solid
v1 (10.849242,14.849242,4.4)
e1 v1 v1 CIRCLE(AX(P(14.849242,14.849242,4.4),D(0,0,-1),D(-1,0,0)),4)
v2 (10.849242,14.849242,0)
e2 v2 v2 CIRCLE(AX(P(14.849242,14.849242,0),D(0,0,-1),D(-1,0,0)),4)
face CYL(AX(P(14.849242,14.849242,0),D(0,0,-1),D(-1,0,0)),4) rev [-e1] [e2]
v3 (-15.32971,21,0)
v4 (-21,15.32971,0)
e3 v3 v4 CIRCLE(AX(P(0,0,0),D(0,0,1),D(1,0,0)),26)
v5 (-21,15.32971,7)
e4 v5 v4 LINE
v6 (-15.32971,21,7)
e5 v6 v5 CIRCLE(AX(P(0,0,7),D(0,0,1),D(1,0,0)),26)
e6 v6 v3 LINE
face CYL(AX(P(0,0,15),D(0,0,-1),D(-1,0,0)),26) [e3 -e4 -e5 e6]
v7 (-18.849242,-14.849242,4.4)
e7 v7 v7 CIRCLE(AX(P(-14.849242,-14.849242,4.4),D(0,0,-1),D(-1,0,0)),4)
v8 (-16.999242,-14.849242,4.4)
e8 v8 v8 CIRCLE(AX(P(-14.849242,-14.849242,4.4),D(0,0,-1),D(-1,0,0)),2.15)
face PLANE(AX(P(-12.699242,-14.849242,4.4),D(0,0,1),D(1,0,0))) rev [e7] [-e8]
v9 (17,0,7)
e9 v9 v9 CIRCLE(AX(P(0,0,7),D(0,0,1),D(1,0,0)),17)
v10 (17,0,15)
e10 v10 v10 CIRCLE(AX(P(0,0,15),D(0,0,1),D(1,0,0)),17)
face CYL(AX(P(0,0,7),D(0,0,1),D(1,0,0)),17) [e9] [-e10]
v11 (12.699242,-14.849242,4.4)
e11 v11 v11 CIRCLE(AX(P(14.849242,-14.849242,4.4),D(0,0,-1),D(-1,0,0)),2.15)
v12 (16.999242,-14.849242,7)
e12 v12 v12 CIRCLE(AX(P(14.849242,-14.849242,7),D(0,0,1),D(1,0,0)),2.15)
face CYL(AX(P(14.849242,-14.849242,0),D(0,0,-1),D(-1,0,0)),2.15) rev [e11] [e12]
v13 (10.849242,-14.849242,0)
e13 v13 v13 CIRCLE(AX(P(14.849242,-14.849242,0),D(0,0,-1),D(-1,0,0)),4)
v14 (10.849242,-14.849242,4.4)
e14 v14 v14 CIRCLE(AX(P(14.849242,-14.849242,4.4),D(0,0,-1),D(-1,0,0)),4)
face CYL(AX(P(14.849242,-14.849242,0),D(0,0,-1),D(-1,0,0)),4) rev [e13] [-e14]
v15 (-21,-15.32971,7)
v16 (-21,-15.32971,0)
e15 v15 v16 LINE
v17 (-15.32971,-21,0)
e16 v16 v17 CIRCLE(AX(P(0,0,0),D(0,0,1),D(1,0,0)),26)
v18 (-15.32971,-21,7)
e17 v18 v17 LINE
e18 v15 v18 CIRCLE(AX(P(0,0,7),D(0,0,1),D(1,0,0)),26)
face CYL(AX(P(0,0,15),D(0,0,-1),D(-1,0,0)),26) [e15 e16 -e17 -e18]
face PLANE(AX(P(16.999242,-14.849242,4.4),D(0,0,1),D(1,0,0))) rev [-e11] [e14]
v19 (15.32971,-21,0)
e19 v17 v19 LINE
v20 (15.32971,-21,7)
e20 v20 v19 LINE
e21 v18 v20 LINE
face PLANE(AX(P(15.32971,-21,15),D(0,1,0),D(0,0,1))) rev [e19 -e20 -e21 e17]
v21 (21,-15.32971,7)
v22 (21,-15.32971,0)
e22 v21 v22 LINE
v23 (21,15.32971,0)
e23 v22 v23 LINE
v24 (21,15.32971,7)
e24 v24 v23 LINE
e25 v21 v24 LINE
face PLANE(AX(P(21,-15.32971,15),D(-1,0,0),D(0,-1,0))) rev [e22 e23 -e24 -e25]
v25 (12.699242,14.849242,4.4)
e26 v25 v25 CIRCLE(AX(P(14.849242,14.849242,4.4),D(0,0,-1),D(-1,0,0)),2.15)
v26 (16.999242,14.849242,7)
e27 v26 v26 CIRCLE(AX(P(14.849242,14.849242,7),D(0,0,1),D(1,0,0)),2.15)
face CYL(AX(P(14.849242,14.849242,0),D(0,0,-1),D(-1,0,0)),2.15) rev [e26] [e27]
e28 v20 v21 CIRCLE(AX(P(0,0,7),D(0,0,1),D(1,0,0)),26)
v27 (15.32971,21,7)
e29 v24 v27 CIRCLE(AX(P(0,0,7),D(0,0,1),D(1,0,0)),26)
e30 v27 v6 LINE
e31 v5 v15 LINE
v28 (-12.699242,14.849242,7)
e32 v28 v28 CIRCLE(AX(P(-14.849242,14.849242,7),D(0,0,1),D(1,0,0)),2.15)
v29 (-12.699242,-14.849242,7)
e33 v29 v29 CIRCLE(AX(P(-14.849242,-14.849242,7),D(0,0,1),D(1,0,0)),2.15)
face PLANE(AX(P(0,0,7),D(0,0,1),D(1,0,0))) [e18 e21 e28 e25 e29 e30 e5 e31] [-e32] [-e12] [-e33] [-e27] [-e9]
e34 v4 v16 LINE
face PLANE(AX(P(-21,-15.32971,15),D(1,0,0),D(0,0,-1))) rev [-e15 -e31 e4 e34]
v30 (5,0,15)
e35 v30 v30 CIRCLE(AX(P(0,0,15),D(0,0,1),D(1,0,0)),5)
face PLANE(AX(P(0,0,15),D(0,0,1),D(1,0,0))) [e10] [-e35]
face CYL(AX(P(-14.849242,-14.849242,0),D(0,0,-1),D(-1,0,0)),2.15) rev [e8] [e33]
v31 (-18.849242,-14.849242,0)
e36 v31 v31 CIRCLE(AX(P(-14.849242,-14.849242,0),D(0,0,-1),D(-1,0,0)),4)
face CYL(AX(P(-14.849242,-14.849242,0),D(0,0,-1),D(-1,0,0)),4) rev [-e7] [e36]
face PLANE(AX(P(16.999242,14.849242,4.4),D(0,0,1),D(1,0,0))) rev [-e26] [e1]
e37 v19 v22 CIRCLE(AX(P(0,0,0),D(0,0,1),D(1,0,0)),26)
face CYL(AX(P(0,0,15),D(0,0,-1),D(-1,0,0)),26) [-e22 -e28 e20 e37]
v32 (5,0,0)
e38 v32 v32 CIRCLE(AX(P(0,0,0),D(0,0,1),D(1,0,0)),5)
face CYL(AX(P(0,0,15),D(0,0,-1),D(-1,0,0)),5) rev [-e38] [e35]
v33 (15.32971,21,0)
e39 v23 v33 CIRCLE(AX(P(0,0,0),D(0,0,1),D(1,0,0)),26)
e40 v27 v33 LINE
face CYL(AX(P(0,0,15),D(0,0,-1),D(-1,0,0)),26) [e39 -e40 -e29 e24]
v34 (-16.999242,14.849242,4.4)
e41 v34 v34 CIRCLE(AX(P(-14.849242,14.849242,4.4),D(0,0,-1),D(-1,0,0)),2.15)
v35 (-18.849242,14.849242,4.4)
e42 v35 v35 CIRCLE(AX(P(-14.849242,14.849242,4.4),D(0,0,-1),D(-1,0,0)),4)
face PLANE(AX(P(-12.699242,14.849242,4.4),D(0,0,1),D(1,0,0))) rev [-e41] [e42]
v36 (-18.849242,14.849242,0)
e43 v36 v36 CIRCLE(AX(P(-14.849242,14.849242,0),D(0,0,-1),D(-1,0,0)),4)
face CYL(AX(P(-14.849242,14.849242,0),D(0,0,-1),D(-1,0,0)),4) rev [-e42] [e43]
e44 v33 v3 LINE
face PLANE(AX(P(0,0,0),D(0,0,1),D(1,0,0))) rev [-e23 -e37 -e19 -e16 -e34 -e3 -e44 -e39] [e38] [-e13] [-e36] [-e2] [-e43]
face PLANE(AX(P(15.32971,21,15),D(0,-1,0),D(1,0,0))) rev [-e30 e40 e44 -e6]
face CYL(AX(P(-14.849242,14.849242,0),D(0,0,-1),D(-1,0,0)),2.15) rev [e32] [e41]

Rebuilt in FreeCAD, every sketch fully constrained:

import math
import FreeCAD as App
import Part
import Sketcher

doc = App.newDocument("Part")
body = doc.addObject("PartDesign::Body", "Body")

sketch1 = body.newObject("Sketcher::SketchObject", "Sketch")
sketch1.AttachmentSupport = (doc.getObject("XY_Plane"), [""])
sketch1.MapMode = "FlatFace"
sketch1.addGeometry(Part.LineSegment(App.Vector(-15, -21, 0), App.Vector(15, -21, 0)), False)
sketch1.addGeometry(Part.ArcOfCircle(Part.Circle(App.Vector(0, 0, 0), App.Vector(0, 0, 1), 26), math.radians(-53.87), math.radians(-36.13)), False)
sketch1.addGeometry(Part.LineSegment(App.Vector(21, -15, 0), App.Vector(21, 15, 0)), False)
sketch1.addGeometry(Part.ArcOfCircle(Part.Circle(App.Vector(0, 0, 0), App.Vector(0, 0, 1), 26), math.radians(36.13), math.radians(53.87)), False)
sketch1.addGeometry(Part.LineSegment(App.Vector(15, 21, 0), App.Vector(-15, 21, 0)), False)
sketch1.addGeometry(Part.ArcOfCircle(Part.Circle(App.Vector(0, 0, 0), App.Vector(0, 0, 1), 26), math.radians(126.13), math.radians(143.87)), False)
sketch1.addGeometry(Part.LineSegment(App.Vector(-21, 15, 0), App.Vector(-21, -15, 0)), False)
sketch1.addGeometry(Part.ArcOfCircle(Part.Circle(App.Vector(0, 0, 0), App.Vector(0, 0, 1), 26), math.radians(-143.87), math.radians(-126.13)), False)
sketch1.addGeometry(Part.Circle(App.Vector(0, 0, 0), App.Vector(0, 0, 1), 5), False)
sketch1.addConstraint(Sketcher.Constraint("Coincident", 0, 2, 1, 1))
sketch1.addConstraint(Sketcher.Constraint("Coincident", 1, 2, 2, 1))
sketch1.addConstraint(Sketcher.Constraint("Coincident", 2, 2, 3, 1))
sketch1.addConstraint(Sketcher.Constraint("Coincident", 3, 2, 4, 1))
sketch1.addConstraint(Sketcher.Constraint("Coincident", 4, 2, 5, 1))
sketch1.addConstraint(Sketcher.Constraint("Coincident", 5, 2, 6, 1))
sketch1.addConstraint(Sketcher.Constraint("Coincident", 6, 2, 7, 1))
sketch1.addConstraint(Sketcher.Constraint("Coincident", 7, 2, 0, 1))
sketch1.addConstraint(Sketcher.Constraint("Horizontal", 0))
sketch1.addConstraint(Sketcher.Constraint("Vertical", 2))
sketch1.addConstraint(Sketcher.Constraint("Horizontal", 4))
sketch1.addConstraint(Sketcher.Constraint("Vertical", 6))
sketch1.addConstraint(Sketcher.Constraint("Coincident", 1, 3, -1, 1))
sketch1.addConstraint(Sketcher.Constraint("Coincident", 3, 3, -1, 1))
sketch1.addConstraint(Sketcher.Constraint("Coincident", 5, 3, -1, 1))
sketch1.addConstraint(Sketcher.Constraint("Coincident", 7, 3, -1, 1))
sketch1.addConstraint(Sketcher.Constraint("Coincident", 8, 3, -1, 1))
sketch1.addConstraint(Sketcher.Constraint("Equal", 1, 3))
sketch1.addConstraint(Sketcher.Constraint("Equal", 3, 5))
sketch1.addConstraint(Sketcher.Constraint("Equal", 5, 7))
sketch1.addConstraint(Sketcher.Constraint("Horizontal", 2, 2, 5, 2))
sketch1.addConstraint(Sketcher.Constraint("Vertical", 0, 2, 3, 2))
sketch1.addConstraint(Sketcher.Constraint("Equal", 4, 2))
sketch1.addConstraint(Sketcher.Constraint("Diameter", 8, 10.0))
sketch1.addConstraint(Sketcher.Constraint("Radius", 1, 26.0))
sketch1.addConstraint(Sketcher.Constraint("DistanceY", 0, 2, -1, 1, 21.0))
pad1 = body.newObject("PartDesign::Pad", "Pad")
pad1.Profile = sketch1
pad1.Length = 15

sketch2 = body.newObject("Sketcher::SketchObject", "Sketch001")
sketch2.AttachmentSupport = (doc.getObject("XY_Plane"), [""])
sketch2.MapMode = "FlatFace"
sketch2.AttachmentOffset = App.Placement(App.Vector(0, 0, 15), App.Rotation())
sketch2.addGeometry(Part.Circle(App.Vector(0, 0, 0), App.Vector(0, 0, 1), 27), False)
sketch2.addGeometry(Part.Circle(App.Vector(0, 0, 0), App.Vector(0, 0, 1), 17), False)
sketch2.addConstraint(Sketcher.Constraint("Coincident", 0, 3, -1, 1))
sketch2.addConstraint(Sketcher.Constraint("Coincident", 1, 3, -1, 1))
sketch2.addConstraint(Sketcher.Constraint("Diameter", 0, 54.0))
sketch2.addConstraint(Sketcher.Constraint("Diameter", 1, 34.0))
pocket1 = body.newObject("PartDesign::Pocket", "Pocket")
pocket1.Profile = sketch2
pocket1.Length = 8

sketch3 = body.newObject("Sketcher::SketchObject", "Sketch002")
sketch3.AttachmentSupport = (doc.getObject("XY_Plane"), [""])
sketch3.MapMode = "FlatFace"
sketch3.addGeometry(Part.Circle(App.Vector(-14.8, 14.8, 0), App.Vector(0, 0, 1), 2.1), False)
sketch3.addConstraint(Sketcher.Constraint("Diameter", 0, 4.3))
sketch3.addConstraint(Sketcher.Constraint("DistanceX", 0, 3, -1, 1, 14.849242))
sketch3.addConstraint(Sketcher.Constraint("DistanceY", -1, 1, 0, 3, 14.849242))
doc.recompute()
hole = body.newObject("PartDesign::Hole", "Hole")
hole.Profile = sketch3
hole.ThreadType = "None"
hole.Diameter = 4.3
hole.DepthType = "Dimension"
hole.Depth = 8.5
hole.DrillPoint = "Angled"
hole.DrillPointAngle = 118
hole.HoleCutType = "Counterbore"
hole.HoleCutDiameter = 8
hole.HoleCutDepth = 4.4
hole.Reversed = True

sketch4 = body.newObject("Sketcher::SketchObject", "Sketch003")
sketch4.AttachmentSupport = (doc.getObject("XY_Plane"), [""])
sketch4.MapMode = "FlatFace"
sketch4.addGeometry(Part.Circle(App.Vector(14.8, 14.8, 0), App.Vector(0, 0, 1), 2.1), False)
sketch4.addConstraint(Sketcher.Constraint("Diameter", 0, 4.3))
sketch4.addConstraint(Sketcher.Constraint("DistanceX", -1, 1, 0, 3, 14.849242))
sketch4.addConstraint(Sketcher.Constraint("DistanceY", -1, 1, 0, 3, 14.849242))
doc.recompute()
hole2 = body.newObject("PartDesign::Hole", "Hole001")
hole2.Profile = sketch4
hole2.ThreadType = "None"
hole2.Diameter = 4.3
hole2.DepthType = "Dimension"
hole2.Depth = 8.5
hole2.DrillPoint = "Angled"
hole2.DrillPointAngle = 118
hole2.HoleCutType = "Counterbore"
hole2.HoleCutDiameter = 8
hole2.HoleCutDepth = 4.4
hole2.Reversed = True

sketch5 = body.newObject("Sketcher::SketchObject", "Sketch004")
sketch5.AttachmentSupport = (doc.getObject("XY_Plane"), [""])
sketch5.MapMode = "FlatFace"
sketch5.addGeometry(Part.Circle(App.Vector(14.8, -14.8, 0), App.Vector(0, 0, 1), 2.1), False)
sketch5.addConstraint(Sketcher.Constraint("Diameter", 0, 4.3))
sketch5.addConstraint(Sketcher.Constraint("DistanceX", -1, 1, 0, 3, 14.849242))
sketch5.addConstraint(Sketcher.Constraint("DistanceY", 0, 3, -1, 1, 14.849242))
doc.recompute()
hole3 = body.newObject("PartDesign::Hole", "Hole002")
hole3.Profile = sketch5
hole3.ThreadType = "None"
hole3.Diameter = 4.3
hole3.DepthType = "Dimension"
hole3.Depth = 8.5
hole3.DrillPoint = "Angled"
hole3.DrillPointAngle = 118
hole3.HoleCutType = "Counterbore"
hole3.HoleCutDiameter = 8
hole3.HoleCutDepth = 4.4
hole3.Reversed = True

sketch6 = body.newObject("Sketcher::SketchObject", "Sketch005")
sketch6.AttachmentSupport = (doc.getObject("XY_Plane"), [""])
sketch6.MapMode = "FlatFace"
sketch6.addGeometry(Part.Circle(App.Vector(-14.8, -14.8, 0), App.Vector(0, 0, 1), 2.1), False)
sketch6.addConstraint(Sketcher.Constraint("Diameter", 0, 4.3))
sketch6.addConstraint(Sketcher.Constraint("DistanceX", 0, 3, -1, 1, 14.849242))
sketch6.addConstraint(Sketcher.Constraint("DistanceY", 0, 3, -1, 1, 14.849242))
doc.recompute()
hole4 = body.newObject("PartDesign::Hole", "Hole003")
hole4.Profile = sketch6
hole4.ThreadType = "None"
hole4.Diameter = 4.3
hole4.DepthType = "Dimension"
hole4.Depth = 8.5
hole4.DrillPoint = "Angled"
hole4.DrillPointAngle = 118
hole4.HoleCutType = "Counterbore"
hole4.HoleCutDiameter = 8
hole4.HoleCutDepth = 4.4
hole4.Reversed = True

doc.recompute()
